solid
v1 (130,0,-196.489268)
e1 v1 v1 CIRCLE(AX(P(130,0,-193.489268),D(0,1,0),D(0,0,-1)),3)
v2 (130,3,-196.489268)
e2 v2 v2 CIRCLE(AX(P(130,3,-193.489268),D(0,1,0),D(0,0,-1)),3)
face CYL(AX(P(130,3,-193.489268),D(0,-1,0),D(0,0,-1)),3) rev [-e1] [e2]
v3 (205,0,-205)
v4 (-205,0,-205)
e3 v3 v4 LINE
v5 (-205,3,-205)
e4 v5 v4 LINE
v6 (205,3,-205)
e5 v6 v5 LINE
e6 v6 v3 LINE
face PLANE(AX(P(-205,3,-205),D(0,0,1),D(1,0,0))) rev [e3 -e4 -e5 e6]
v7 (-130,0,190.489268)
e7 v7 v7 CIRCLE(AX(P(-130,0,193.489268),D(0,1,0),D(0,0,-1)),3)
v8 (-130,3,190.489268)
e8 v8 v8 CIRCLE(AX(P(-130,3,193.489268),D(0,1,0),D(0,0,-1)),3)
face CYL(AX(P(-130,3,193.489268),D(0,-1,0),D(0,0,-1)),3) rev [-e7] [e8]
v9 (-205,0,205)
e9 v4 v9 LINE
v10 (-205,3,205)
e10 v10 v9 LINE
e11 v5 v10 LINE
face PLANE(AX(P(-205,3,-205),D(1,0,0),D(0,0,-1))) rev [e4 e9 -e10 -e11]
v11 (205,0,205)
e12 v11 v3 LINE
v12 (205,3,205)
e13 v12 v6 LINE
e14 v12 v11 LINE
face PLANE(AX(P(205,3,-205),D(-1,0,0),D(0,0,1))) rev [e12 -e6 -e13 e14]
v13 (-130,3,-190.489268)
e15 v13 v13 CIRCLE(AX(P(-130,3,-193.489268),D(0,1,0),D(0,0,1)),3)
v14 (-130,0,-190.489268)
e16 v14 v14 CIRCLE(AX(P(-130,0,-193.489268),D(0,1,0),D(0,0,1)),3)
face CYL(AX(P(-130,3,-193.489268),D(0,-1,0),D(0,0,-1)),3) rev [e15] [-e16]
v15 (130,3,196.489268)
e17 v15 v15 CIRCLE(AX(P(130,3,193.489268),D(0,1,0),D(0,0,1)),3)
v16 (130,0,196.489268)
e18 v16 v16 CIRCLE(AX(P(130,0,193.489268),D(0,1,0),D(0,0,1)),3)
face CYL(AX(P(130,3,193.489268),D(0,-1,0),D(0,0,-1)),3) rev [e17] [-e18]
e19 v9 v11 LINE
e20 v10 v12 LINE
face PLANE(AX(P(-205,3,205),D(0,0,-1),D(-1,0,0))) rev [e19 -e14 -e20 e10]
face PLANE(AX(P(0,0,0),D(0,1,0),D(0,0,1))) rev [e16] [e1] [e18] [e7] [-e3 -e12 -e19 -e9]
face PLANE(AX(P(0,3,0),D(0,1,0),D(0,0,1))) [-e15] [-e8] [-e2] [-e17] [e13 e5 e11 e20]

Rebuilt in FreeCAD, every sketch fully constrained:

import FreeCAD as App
import Part
import Sketcher
from FreeCAD import Vector
Q = App.Units.Quantity


def add_polygon(sketch, points):
    """Adds a closed chain of lines whose ends are joined by coincident constraints."""
    first, n = sketch.GeometryCount, len(points)
    for a, b in zip(points, points[1:] + points[:1]):
        sketch.addGeometry(Part.LineSegment(App.Vector(*a, 0), App.Vector(*b, 0)), False)
    for i in range(n):
        sketch.addConstraint(Sketcher.Constraint("Coincident", first + i, 2, first + (i + 1) % n, 1))

doc = App.newDocument("Part")
body = doc.addObject("PartDesign::Body", "Body")

# Sketch on XZ plane
sketch1 = doc.addObject("Sketcher::SketchObject", "Sketch")
body.addObject(sketch1)
sketch1.AttachmentSupport = (doc.XZ_Plane, [""])
sketch1.MapMode = "FlatFace"
add_polygon(sketch1, [(-205, -205), (-205, 205), (205, 205), (205, -205)])  # lines 0-3
sketch1.addGeometry(Part.Circle(Vector(-130, 193.5, 0), Vector(0, 0, 1), 3), False)  # 4
sketch1.addGeometry(Part.Circle(Vector(130, 193.5, 0), Vector(0, 0, 1), 3), False)  # 5
sketch1.addGeometry(Part.Circle(Vector(-130, -193.5, 0), Vector(0, 0, 1), 3), False)  # 6
sketch1.addGeometry(Part.Circle(Vector(130, -193.5, 0), Vector(0, 0, 1), 3), False)  # 7
sketch1.addConstraint([
    Sketcher.Constraint("Vertical", 0),
    Sketcher.Constraint("Horizontal", 1),
    Sketcher.Constraint("Vertical", 2),
    Sketcher.Constraint("Horizontal", 3),
    Sketcher.Constraint("Equal", 4, 5),
    Sketcher.Constraint("Equal", 5, 6),
    Sketcher.Constraint("Equal", 6, 7),
    Sketcher.Constraint("Symmetric", 5, 3, 6, 3, -1, 1),
    Sketcher.Constraint("Symmetric", 4, 3, 7, 3, -1, 1),
    Sketcher.Constraint("Symmetric", 0, 2, 2, 2, -1, 1),
    Sketcher.Constraint("Symmetric", 4, 3, 5, 3, -2),
    Sketcher.Constraint("Equal", 3, 0),
    Sketcher.Constraint("Diameter", 4, Q("6 mm")),
    Sketcher.Constraint("DistanceX", 1, 1, 1, 2, Q("410 mm")),
    Sketcher.Constraint("DistanceX", 4, 3, -1, 1, Q("130 mm")),
    Sketcher.Constraint("DistanceY", -1, 1, 4, 3, Q("193.489268 mm")),
])
pad1 = doc.addObject("PartDesign::Pad", "Pad")
body.addObject(pad1)
pad1.Profile = sketch1
pad1.Length = 3
pad1.Reversed = True

doc.recompute()
